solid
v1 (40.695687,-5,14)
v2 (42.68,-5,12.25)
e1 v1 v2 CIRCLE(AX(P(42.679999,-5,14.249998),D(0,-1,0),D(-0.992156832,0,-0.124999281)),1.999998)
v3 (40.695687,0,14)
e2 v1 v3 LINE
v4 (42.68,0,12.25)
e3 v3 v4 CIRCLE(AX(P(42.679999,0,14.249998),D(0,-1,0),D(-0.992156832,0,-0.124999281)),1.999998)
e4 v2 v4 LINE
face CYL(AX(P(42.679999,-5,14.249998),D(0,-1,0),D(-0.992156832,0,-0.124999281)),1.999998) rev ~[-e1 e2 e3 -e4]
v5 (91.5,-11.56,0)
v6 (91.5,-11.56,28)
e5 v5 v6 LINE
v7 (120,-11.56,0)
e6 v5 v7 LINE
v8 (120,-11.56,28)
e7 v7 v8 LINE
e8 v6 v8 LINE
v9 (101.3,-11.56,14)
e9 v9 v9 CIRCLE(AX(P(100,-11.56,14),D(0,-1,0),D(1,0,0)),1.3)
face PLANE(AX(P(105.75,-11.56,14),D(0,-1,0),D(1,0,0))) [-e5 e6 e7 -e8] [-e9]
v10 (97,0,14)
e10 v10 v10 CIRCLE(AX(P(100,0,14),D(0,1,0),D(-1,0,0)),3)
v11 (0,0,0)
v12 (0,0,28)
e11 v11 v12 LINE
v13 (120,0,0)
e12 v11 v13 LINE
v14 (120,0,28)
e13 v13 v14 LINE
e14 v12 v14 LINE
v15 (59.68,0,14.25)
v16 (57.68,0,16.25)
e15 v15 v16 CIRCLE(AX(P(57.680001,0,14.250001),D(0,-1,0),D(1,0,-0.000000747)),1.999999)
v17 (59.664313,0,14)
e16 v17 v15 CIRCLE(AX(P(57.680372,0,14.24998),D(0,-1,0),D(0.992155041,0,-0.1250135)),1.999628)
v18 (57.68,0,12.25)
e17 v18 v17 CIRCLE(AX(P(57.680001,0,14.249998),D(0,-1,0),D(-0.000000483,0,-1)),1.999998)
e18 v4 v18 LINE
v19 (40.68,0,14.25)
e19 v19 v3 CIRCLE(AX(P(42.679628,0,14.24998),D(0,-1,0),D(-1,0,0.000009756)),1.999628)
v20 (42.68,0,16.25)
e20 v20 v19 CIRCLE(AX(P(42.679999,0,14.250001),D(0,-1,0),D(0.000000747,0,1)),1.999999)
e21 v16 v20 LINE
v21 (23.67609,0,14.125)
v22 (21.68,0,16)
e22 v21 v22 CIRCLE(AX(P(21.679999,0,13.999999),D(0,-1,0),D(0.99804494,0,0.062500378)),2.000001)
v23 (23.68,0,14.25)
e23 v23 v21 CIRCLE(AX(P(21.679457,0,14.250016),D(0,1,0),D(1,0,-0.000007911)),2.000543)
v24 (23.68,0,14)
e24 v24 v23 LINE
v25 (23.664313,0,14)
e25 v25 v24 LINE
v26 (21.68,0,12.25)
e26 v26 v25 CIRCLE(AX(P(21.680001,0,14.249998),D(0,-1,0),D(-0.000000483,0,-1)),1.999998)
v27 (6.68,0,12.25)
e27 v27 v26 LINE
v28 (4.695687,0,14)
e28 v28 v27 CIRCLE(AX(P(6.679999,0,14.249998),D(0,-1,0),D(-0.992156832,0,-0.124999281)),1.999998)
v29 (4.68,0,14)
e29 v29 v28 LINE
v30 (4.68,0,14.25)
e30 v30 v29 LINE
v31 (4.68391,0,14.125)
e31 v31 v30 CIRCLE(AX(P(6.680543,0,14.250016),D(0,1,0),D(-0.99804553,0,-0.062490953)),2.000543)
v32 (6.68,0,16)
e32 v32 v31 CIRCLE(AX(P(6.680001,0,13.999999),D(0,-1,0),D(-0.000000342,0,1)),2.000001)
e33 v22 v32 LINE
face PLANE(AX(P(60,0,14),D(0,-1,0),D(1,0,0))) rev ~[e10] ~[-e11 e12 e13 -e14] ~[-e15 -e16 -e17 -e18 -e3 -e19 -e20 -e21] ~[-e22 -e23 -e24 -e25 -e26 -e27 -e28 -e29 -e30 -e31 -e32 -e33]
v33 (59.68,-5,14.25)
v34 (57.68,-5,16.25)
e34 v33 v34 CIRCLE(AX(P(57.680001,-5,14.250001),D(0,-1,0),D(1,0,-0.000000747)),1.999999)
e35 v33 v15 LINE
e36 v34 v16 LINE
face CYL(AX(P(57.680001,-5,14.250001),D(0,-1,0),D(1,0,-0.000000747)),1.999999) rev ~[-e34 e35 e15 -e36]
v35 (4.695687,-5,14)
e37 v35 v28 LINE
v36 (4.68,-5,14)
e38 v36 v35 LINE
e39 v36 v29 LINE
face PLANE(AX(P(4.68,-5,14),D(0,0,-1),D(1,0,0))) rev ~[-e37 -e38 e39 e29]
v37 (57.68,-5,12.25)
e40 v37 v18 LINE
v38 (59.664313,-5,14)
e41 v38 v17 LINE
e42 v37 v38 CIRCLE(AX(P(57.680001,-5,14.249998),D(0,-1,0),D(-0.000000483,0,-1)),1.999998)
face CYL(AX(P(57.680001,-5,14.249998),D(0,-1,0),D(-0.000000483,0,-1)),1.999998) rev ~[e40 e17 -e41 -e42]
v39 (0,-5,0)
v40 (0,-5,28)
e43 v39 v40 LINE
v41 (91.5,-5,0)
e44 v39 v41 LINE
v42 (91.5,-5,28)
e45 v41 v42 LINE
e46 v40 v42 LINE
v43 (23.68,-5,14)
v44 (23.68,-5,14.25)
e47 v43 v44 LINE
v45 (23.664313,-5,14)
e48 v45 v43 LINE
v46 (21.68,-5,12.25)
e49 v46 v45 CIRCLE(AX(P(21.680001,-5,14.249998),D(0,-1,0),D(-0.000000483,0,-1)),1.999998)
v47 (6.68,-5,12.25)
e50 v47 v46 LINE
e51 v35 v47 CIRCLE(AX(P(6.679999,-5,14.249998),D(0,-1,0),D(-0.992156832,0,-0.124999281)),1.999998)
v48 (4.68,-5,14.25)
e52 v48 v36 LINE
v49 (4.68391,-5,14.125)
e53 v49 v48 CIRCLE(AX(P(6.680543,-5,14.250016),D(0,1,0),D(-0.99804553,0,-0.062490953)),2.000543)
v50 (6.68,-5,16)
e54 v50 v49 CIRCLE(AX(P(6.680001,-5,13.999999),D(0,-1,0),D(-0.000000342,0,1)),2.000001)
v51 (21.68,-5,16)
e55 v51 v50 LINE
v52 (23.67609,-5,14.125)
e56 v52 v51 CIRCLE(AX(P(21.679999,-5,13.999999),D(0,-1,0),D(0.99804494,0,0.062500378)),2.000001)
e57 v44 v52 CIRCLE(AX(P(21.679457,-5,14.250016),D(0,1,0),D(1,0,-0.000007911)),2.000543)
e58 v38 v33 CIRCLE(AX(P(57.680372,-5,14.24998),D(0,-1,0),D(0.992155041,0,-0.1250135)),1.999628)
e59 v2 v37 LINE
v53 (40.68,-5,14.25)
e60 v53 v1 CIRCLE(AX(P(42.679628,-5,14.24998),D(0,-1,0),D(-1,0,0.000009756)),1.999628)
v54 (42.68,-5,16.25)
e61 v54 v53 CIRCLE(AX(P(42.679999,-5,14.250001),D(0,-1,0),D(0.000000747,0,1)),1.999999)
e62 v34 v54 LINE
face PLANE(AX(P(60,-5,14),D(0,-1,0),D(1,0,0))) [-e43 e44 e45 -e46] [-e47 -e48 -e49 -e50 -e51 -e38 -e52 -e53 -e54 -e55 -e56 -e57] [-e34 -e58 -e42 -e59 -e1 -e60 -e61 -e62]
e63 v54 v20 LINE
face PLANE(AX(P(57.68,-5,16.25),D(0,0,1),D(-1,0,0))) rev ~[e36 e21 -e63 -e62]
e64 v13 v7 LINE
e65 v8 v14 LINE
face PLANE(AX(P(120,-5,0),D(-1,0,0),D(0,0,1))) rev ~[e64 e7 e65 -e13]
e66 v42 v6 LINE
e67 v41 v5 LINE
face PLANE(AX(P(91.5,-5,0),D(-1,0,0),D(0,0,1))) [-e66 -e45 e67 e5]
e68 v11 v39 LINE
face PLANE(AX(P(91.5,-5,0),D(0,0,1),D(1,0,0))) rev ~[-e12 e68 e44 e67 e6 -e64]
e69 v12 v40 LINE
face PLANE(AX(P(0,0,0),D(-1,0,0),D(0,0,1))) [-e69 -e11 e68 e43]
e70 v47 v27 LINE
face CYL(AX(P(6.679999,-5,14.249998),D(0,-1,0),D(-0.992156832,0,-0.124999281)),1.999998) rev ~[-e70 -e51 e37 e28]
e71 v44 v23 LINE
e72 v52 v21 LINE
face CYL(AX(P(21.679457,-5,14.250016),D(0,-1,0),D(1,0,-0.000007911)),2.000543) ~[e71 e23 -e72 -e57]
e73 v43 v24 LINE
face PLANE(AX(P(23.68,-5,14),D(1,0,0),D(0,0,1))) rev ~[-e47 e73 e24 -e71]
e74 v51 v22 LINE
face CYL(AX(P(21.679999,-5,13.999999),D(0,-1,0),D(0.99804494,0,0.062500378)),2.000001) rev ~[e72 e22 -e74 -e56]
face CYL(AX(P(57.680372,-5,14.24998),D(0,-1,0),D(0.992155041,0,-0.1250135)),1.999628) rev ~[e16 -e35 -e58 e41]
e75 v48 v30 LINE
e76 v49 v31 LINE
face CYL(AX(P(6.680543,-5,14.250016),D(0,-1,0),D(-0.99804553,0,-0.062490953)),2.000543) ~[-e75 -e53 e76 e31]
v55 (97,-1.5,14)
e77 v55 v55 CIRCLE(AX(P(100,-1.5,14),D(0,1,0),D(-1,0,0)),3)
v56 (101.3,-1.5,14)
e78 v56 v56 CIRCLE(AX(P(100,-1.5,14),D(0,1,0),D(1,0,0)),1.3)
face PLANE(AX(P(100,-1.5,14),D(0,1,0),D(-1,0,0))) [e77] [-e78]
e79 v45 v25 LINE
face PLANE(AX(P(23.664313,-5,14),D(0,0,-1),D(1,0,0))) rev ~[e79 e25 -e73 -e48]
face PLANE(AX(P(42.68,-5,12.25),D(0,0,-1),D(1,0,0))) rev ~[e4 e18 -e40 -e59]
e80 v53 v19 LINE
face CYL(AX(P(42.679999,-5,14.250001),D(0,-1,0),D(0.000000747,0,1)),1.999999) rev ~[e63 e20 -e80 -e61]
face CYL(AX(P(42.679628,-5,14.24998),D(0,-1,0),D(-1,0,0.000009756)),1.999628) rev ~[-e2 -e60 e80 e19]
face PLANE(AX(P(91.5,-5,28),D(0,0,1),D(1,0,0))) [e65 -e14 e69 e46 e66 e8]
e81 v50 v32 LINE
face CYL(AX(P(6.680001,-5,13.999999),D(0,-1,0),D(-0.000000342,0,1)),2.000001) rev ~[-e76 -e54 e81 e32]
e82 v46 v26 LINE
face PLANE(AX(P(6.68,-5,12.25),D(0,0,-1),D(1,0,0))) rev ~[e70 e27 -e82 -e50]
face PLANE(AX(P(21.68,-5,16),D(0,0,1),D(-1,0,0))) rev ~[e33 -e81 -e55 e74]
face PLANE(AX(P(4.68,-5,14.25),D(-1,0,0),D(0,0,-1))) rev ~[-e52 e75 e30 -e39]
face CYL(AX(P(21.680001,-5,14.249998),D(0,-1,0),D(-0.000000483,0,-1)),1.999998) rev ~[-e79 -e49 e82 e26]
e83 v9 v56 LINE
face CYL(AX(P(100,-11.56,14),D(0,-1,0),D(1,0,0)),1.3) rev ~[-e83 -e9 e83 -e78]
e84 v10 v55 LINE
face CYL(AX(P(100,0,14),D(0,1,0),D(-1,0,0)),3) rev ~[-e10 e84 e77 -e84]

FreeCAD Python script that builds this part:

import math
import FreeCAD as App
import Part
import Sketcher

V = App.Vector
Q = App.Units.Quantity

doc = App.newDocument("Part")
body = doc.addObject("PartDesign::Body", "Body")

# Sketch on XZ plane
sketch1 = body.newObject("Sketcher::SketchObject", "Sketch")
sketch1.AttachmentSupport = (doc.getObject("XZ_Plane"), [""])
sketch1.MapMode = "FlatFace"
sketch1.addGeometry([
    Part.LineSegment(V(0, 28, 0), V(0, 0, 0)),
    Part.LineSegment(V(0, 0, 0), V(120, 0, 0)),
    Part.LineSegment(V(120, 0, 0), V(120, 28, 0)),
    Part.LineSegment(V(120, 28, 0), V(0, 28, 0)),
], False)
sketch1.addConstraint([
    Sketcher.Constraint("Coincident", 0, 2, 1, 1),
    Sketcher.Constraint("Coincident", 1, 2, 2, 1),
    Sketcher.Constraint("Coincident", 2, 2, 3, 1),
    Sketcher.Constraint("Coincident", 3, 2, 0, 1),
    Sketcher.Constraint("Vertical", 0),
    Sketcher.Constraint("Horizontal", 1),
    Sketcher.Constraint("Vertical", 2),
    Sketcher.Constraint("Horizontal", 3),
    Sketcher.Constraint("Coincident", 0, 2, -1, 1),
    Sketcher.Constraint("DistanceX", 1, 1, 1, 2, Q("120 mm")),
    Sketcher.Constraint("DistanceY", 0, 2, 0, 1, Q("28 mm")),
])
pad1 = body.newObject("PartDesign::Pad", "Pad")
pad1.Profile = sketch1
pad1.Length = 5

# Sketch on XZ plane
sketch2 = body.newObject("Sketcher::SketchObject", "Sketch001")
sketch2.AttachmentSupport = (doc.getObject("XZ_Plane"), [""])
sketch2.MapMode = "FlatFace"
sketch2.AttachmentOffset = App.Placement(V(0, 0, 5), App.Rotation())
sketch2.addGeometry([
    Part.LineSegment(V(92, 28, 0), V(92, 0, 0)),
    Part.LineSegment(V(92, 0, 0), V(120, 0, 0)),
    Part.LineSegment(V(120, 0, 0), V(120, 28, 0)),
    Part.LineSegment(V(120, 28, 0), V(92, 28, 0)),
], False)
sketch2.addConstraint([
    Sketcher.Constraint("Coincident", 0, 2, 1, 1),
    Sketcher.Constraint("Coincident", 1, 2, 2, 1),
    Sketcher.Constraint("Coincident", 2, 2, 3, 1),
    Sketcher.Constraint("Coincident", 3, 2, 0, 1),
    Sketcher.Constraint("Vertical", 0),
    Sketcher.Constraint("Horizontal", 1),
    Sketcher.Constraint("Vertical", 2),
    Sketcher.Constraint("Horizontal", 3),
    Sketcher.Constraint("PointOnObject", 0, 2, -1),
    Sketcher.Constraint("DistanceY", 0, 2, 0, 1, Q("28 mm")),
    Sketcher.Constraint("DistanceX", 1, 1, 1, 2, Q("28.5 mm")),
    Sketcher.Constraint("DistanceX", -1, 1, 1, 2, Q("120 mm")),
])
pad2 = body.newObject("PartDesign::Pad", "Pad001")
pad2.Profile = sketch2
pad2.Length = 6.56

# Sketch on XZ plane
sketch3 = body.newObject("Sketcher::SketchObject", "Sketch002")
sketch3.AttachmentSupport = (doc.getObject("XZ_Plane"), [""])
sketch3.MapMode = "FlatFace"
sketch3.AttachmentOffset = App.Placement(V(0, 0, 11.56), App.Rotation())
sketch3.addGeometry(Part.Circle(V(100, 14, 0), V(0, 0, 1), 1.3), False)
sketch3.addConstraint([
    Sketcher.Constraint("Diameter", 0, Q("2.6 mm")),
    Sketcher.Constraint("DistanceX", -1, 1, 0, 3, Q("100 mm")),
    Sketcher.Constraint("DistanceY", -1, 1, 0, 3, Q("14 mm")),
])
pocket1 = body.newObject("PartDesign::Pocket", "Pocket")
pocket1.Profile = sketch3
pocket1.Type = "ThroughAll"

# Sketch on XZ plane
sketch4 = body.newObject("Sketcher::SketchObject", "Sketch003")
sketch4.AttachmentSupport = (doc.getObject("XZ_Plane"), [""])
sketch4.MapMode = "FlatFace"
sketch4.AttachmentOffset = App.Placement(V(0, 0, 5), App.Rotation())
sketch4.addGeometry([
    Part.LineSegment(V(4.68, 14, 0), V(4.696, 14, 0)),  # 0
    Part.ArcOfCircle(Part.Circle(V(6.68, 14.25, 0), V(0, 0, 1), 2), math.radians(-173), math.radians(-90)),  # 1
    Part.LineSegment(V(6.68, 12.25, 0), V(21.68, 12.25, 0)),  # 2
    Part.ArcOfCircle(Part.Circle(V(21.68, 14.25, 0), V(0, 0, 1), 2), math.radians(-90), math.radians(-7)),  # 3
    Part.LineSegment(V(23.664, 14, 0), V(23.68, 14, 0)),  # 4
    Part.LineSegment(V(23.68, 14, 0), V(23.68, 14.25, 0)),  # 5
    Part.ArcOfCircle(Part.Circle(V(21.679, 14.25, 0), V(0, 0, 1), 2.001), math.radians(-3.58), math.radians(0)),  # 6
    Part.ArcOfCircle(Part.Circle(V(21.68, 14, 0), V(0, 0, 1), 2), math.radians(4), math.radians(90)),  # 7
    Part.LineSegment(V(21.68, 16, 0), V(6.68, 16, 0)),  # 8
    Part.ArcOfCircle(Part.Circle(V(6.68, 14, 0), V(0, 0, 1), 2), math.radians(90), math.radians(176)),  # 9
    Part.ArcOfCircle(Part.Circle(V(6.681, 14.25, 0), V(0, 0, 1), 2.001), math.radians(-180), math.radians(-176.42)),  # 10
    Part.LineSegment(V(4.68, 14.25, 0), V(4.68, 14, 0)),  # 11
    Part.ArcOfCircle(Part.Circle(V(42.68, 14.25, 0), V(0, 0, 1), 2), math.radians(180), math.radians(187.18)),  # 12
    Part.ArcOfCircle(Part.Circle(V(42.68, 14.25, 0), V(0, 0, 1), 2), math.radians(-173), math.radians(-90)),  # 13
    Part.LineSegment(V(42.68, 12.25, 0), V(57.68, 12.25, 0)),  # 14
    Part.ArcOfCircle(Part.Circle(V(57.68, 14.25, 0), V(0, 0, 1), 2), math.radians(-90), math.radians(-7)),  # 15
    Part.ArcOfCircle(Part.Circle(V(57.68, 14.25, 0), V(0, 0, 1), 2), math.radians(-7.18), math.radians(0)),  # 16
    Part.ArcOfCircle(Part.Circle(V(57.68, 14.25, 0), V(0, 0, 1), 2), math.radians(0), math.radians(90)),  # 17
    Part.LineSegment(V(57.68, 16.25, 0), V(42.68, 16.25, 0)),  # 18
    Part.ArcOfCircle(Part.Circle(V(42.68, 14.25, 0), V(0, 0, 1), 2), math.radians(90), math.radians(180)),  # 19
], False)
sketch4.addConstraint([
    Sketcher.Constraint("Coincident", 0, 2, 1, 1),
    Sketcher.Constraint("Tangent", 1, 2, 2, 1),
    Sketcher.Constraint("Tangent", 2, 2, 3, 1),
    Sketcher.Constraint("Coincident", 3, 2, 4, 1),
    Sketcher.Constraint("Coincident", 4, 2, 5, 1),
    Sketcher.Constraint("Coincident", 5, 2, 6, 2),
    Sketcher.Constraint("Coincident", 6, 1, 7, 1),
    Sketcher.Constraint("Tangent", 7, 2, 8, 1),
    Sketcher.Constraint("Tangent", 8, 2, 9, 1),
    Sketcher.Constraint("Coincident", 9, 2, 10, 2),
    Sketcher.Constraint("Coincident", 10, 1, 11, 1),
    Sketcher.Constraint("Coincident", 11, 2, 0, 1),
    Sketcher.Constraint("Coincident", 12, 2, 13, 1),
    Sketcher.Constraint("Tangent", 13, 2, 14, 1),
    Sketcher.Constraint("Tangent", 14, 2, 15, 1),
    Sketcher.Constraint("Coincident", 15, 2, 16, 1),
    Sketcher.Constraint("Coincident", 16, 2, 17, 1),
    Sketcher.Constraint("Tangent", 17, 2, 18, 1),
    Sketcher.Constraint("Tangent", 18, 2, 19, 1),
    Sketcher.Constraint("Coincident", 19, 2, 12, 1),
    Sketcher.Constraint("Horizontal", 0),
    Sketcher.Constraint("Horizontal", 2),
    Sketcher.Constraint("Horizontal", 4),
    Sketcher.Constraint("Vertical", 5),
    Sketcher.Constraint("Horizontal", 8),
    Sketcher.Constraint("Vertical", 11),
    Sketcher.Constraint("Horizontal", 14),
    Sketcher.Constraint("Horizontal", 18),
    Sketcher.Constraint("Coincident", 17, 3, 15, 3),
    Sketcher.Constraint("Coincident", 19, 3, 13, 3),
    Sketcher.Constraint("Equal", 1, 3),
    Sketcher.Constraint("Equal", 7, 9),
    Sketcher.Constraint("Equal", 6, 10),
    Sketcher.Constraint("Equal", 3, 13),
    Sketcher.Constraint("Equal", 13, 15),
    Sketcher.Constraint("Equal", 12, 16),
    Sketcher.Constraint("Equal", 15, 17),
    Sketcher.Constraint("Horizontal", 6, 3, 10, 3),
    Sketcher.Constraint("Horizontal", 3, 3, 13, 3),
    Sketcher.Constraint("Horizontal", 9, 3, 0, 2),
    Sketcher.Constraint("Horizontal", 0, 2, 3, 2),
    Sketcher.Constraint("Horizontal", 19, 3, 5, 2),
    Sketcher.Constraint("Horizontal", 6, 1, 9, 2),
    Sketcher.Constraint("Horizontal", 5, 2, 10, 1),
    Sketcher.Constraint("Horizontal", 11, 2, 12, 2),
    Sketcher.Constraint("Horizontal", 12, 2, 15, 2),
    Sketcher.Constraint("Horizontal", 10, 1, 16, 2),
    Sketcher.Constraint("Horizontal", 16, 2, 19, 2),
    Sketcher.Constraint("Vertical", 3, 3, 7, 3),
    Sketcher.Constraint("Vertical", 1, 3, 9, 3),
    Sketcher.Constraint("Equal", 8, 14),
    Sketcher.Constraint("Radius", 1, Q("1.999998 mm")),
    Sketcher.Constraint("Radius", 7, Q("2.000001 mm")),
    Sketcher.Constraint("DistanceX", 2, 1, 2, 2, Q("15 mm")),
    Sketcher.Constraint("DistanceY", -1, 1, 7, 3, Q("13.999999 mm")),
    Sketcher.Constraint("DistanceX", 3, 3, 13, 3, Q("20.999998 mm")),
    Sketcher.Constraint("DistanceX", 7, 3, 4, 2, Q("2.000001 mm")),
    Sketcher.Constraint("DistanceY", 5, 1, 5, 2, Q("0.25 mm")),
    Sketcher.Constraint("DistanceX", -1, 1, 1, 3, Q("6.679999 mm")),
    Sketcher.Constraint("DistanceY", -1, 1, 6, 1, Q("14.125 mm")),
    Sketcher.Constraint("Radius", 6, Q("2.000543 mm")),
    Sketcher.Constraint("Radius", 12, Q("1.999628 mm")),
])
pocket2 = body.newObject("PartDesign::Pocket", "Pocket001")
pocket2.Profile = sketch4
pocket2.Type = "ThroughAll"

# Sketch on XZ plane
sketch5 = body.newObject("Sketcher::SketchObject", "Sketch004")
sketch5.AttachmentSupport = (doc.getObject("XZ_Plane"), [""])
sketch5.MapMode = "FlatFace"
sketch5.addGeometry([
    Part.Circle(V(100, 14, 0), V(0, 0, 1), 3),
    Part.Circle(V(100, 14, 0), V(0, 0, 1), 1.3),
], False)
sketch5.addConstraint([
    Sketcher.Constraint("Coincident", 1, 3, 0, 3),
    Sketcher.Constraint("Diameter", 0, Q("6 mm")),
    Sketcher.Constraint("Diameter", 1, Q("2.6 mm")),
    Sketcher.Constraint("DistanceX", -1, 1, 0, 3, Q("100 mm")),
    Sketcher.Constraint("DistanceY", -1, 1, 0, 3, Q("14 mm")),
])
pocket3 = body.newObject("PartDesign::Pocket", "Pocket002")
pocket3.Profile = sketch5
pocket3.Length = 1.5
pocket3.Reversed = True

doc.recompute()
